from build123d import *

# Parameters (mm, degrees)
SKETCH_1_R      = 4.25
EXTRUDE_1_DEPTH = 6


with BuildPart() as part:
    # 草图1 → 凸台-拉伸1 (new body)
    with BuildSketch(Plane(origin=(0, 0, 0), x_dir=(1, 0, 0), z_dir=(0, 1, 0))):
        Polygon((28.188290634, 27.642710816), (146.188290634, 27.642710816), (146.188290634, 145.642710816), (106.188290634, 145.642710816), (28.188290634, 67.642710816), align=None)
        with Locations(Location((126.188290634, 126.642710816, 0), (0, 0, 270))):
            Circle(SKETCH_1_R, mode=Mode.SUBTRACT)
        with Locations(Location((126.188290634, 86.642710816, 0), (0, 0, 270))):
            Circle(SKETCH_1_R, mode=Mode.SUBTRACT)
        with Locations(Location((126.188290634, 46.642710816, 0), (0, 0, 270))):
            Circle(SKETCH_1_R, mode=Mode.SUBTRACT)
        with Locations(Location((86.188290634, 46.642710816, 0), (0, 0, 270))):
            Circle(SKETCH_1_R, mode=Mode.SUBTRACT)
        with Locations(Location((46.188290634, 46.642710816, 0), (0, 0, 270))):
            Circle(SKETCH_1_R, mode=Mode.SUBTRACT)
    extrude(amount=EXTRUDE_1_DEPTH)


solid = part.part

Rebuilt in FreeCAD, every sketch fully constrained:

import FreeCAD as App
import Part
import Sketcher
from FreeCAD import Vector


def add_polygon(sketch, points):
    """Adds a closed chain of lines whose ends are joined by coincident constraints."""
    first, n = sketch.GeometryCount, len(points)
    for a, b in zip(points, points[1:] + points[:1]):
        sketch.addGeometry(Part.LineSegment(App.Vector(*a, 0), App.Vector(*b, 0)), False)
    for i in range(n):
        sketch.addConstraint(Sketcher.Constraint("Coincident", first + i, 2, first + (i + 1) % n, 1))

doc = App.newDocument("Part")
params = doc.addObject("Spreadsheet::Sheet", "Params")
for row, (alias, value) in enumerate([
    ("sketch1_diameter", "8.5 mm"),
    ("sketch1_width", "118 mm"),
    ("sketch1_width2", "40 mm"),
    ("pad1_length", "6 mm"),
], start=1):
    params.set(f"A{row}", alias)
    params.set(f"B{row}", "=" + value)
    params.setAlias(f"B{row}", alias)

body = doc.addObject("PartDesign::Body", "Body")

sketch1 = doc.addObject("Sketcher::SketchObject", "Sketch")
body.addObject(sketch1)
sketch1.AttachmentSupport = (doc.XZ_Plane, [""])
sketch1.MapMode = "FlatFace"
add_polygon(sketch1, [(28.2, -27.6), (146.2, -27.6), (146.2, -145.6), (106.2, -145.6), (28.2, -67.6)])
sketch1.addGeometry(Part.Circle(Vector(46.2, -46.6, 0), Vector(0, 0, 1), 4.2), False)
sketch1.addGeometry(Part.Circle(Vector(86.2, -46.6, 0), Vector(0, 0, 1), 4.2), False)
sketch1.addGeometry(Part.Circle(Vector(126.2, -46.6, 0), Vector(0, 0, 1), 4.2), False)
sketch1.addGeometry(Part.Circle(Vector(126.2, -86.6, 0), Vector(0, 0, 1), 4.2), False)
sketch1.addGeometry(Part.Circle(Vector(126.2, -126.6, 0), Vector(0, 0, 1), 4.2), False)
sketch1.addConstraint([
    Sketcher.Constraint("Horizontal", 0),
    Sketcher.Constraint("Vertical", 1),
    Sketcher.Constraint("Horizontal", 2),
    Sketcher.Constraint("Vertical", 4),
    Sketcher.Constraint("Equal", 5, 6),
    Sketcher.Constraint("Equal", 6, 7),
    Sketcher.Constraint("Equal", 7, 8),
    Sketcher.Constraint("Equal", 8, 9),
    Sketcher.Constraint("Horizontal", 5, 3, 6, 3),
    Sketcher.Constraint("Horizontal", 6, 3, 7, 3),
    Sketcher.Constraint("Vertical", 7, 3, 8, 3),
    Sketcher.Constraint("Vertical", 8, 3, 9, 3),
    Sketcher.Constraint("Equal", 0, 1),
    Sketcher.Constraint("Equal", 2, 4),
    Sketcher.Constraint("Diameter", 5, 8.5),
    Sketcher.Constraint("DistanceX", 0, 1, 0, 2, 118.0),
    Sketcher.Constraint("DistanceX", 2, 2, 2, 1, 40.0),
    Sketcher.Constraint("DistanceX", 5, 3, 6, 3, 40.0),
    Sketcher.Constraint("DistanceX", 6, 3, 7, 3, 40.0),
    Sketcher.Constraint("DistanceY", 8, 3, 7, 3, 40.0),
    Sketcher.Constraint("DistanceY", 9, 3, 8, 3, 40.0),
    Sketcher.Constraint("DistanceX", 7, 3, 0, 2, 20.0),
    Sketcher.Constraint("DistanceY", 7, 3, 0, 2, 19.0),
    Sketcher.Constraint("DistanceX", -1, 1, 5, 3, 46.188291),
    Sketcher.Constraint("DistanceY", 5, 3, -1, 1, 46.642711),
])
sketch1.setExpression("Constraints[19]", "Params.sketch1_diameter")
sketch1.setExpression("Constraints[20]", "Params.sketch1_width")
sketch1.setExpression("Constraints[21]", "Params.sketch1_width2")
pad1 = doc.addObject("PartDesign::Pad", "Pad")
body.addObject(pad1)
pad1.Profile = sketch1
pad1.setExpression("Length", "Params.pad1_length")
pad1.Reversed = True

doc.recompute()
